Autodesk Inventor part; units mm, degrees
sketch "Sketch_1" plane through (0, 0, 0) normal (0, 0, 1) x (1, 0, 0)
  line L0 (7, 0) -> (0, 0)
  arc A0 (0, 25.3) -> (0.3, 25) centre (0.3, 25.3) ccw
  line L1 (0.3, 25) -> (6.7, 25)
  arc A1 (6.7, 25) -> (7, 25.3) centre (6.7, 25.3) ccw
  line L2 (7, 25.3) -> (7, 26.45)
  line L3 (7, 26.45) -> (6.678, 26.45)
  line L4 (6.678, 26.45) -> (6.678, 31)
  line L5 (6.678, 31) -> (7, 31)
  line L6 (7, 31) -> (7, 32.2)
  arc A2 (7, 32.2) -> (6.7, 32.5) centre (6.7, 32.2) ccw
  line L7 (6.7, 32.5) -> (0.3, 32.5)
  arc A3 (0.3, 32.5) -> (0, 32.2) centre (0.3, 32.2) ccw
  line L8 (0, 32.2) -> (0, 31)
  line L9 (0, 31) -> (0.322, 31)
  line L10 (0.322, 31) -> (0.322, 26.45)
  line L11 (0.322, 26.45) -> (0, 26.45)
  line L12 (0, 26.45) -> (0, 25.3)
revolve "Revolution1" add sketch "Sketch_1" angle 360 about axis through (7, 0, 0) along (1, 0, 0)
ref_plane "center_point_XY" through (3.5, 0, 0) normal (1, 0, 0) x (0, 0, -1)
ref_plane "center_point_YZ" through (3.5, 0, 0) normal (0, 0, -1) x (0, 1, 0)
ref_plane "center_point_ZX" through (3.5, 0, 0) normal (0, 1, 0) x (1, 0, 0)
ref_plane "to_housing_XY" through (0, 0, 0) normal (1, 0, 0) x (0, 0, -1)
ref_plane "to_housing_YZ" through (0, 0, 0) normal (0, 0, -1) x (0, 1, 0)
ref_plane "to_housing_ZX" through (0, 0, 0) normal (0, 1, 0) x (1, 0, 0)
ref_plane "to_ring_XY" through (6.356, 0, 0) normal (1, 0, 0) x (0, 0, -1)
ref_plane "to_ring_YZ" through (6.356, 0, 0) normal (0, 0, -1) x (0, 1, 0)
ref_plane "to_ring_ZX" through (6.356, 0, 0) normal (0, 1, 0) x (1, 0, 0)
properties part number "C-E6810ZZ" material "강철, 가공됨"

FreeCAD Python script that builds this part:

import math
import FreeCAD as App
import Part
import Sketcher

doc = App.newDocument("Part")
body = doc.addObject("PartDesign::Body", "Body")

# Sketch on XY plane
sketch1 = body.newObject("Sketcher::SketchObject", "Sketch")
sketch1.AttachmentSupport = (doc.getObject("XY_Plane"), [""])
sketch1.MapMode = "FlatFace"
sketch1.addGeometry([
    Part.LineSegment(App.Vector(0, 26.45, 0), App.Vector(0, 25.3, 0)),  # 0
    Part.ArcOfCircle(Part.Circle(App.Vector(0.3, 25.3, 0), App.Vector(0, 0, 1), 0.3), math.radians(180), math.radians(270)),  # 1
    Part.LineSegment(App.Vector(0.3, 25, 0), App.Vector(6.7, 25, 0)),  # 2
    Part.ArcOfCircle(Part.Circle(App.Vector(6.7, 25.3, 0), App.Vector(0, 0, 1), 0.3), math.radians(-90), math.radians(0)),  # 3
    Part.LineSegment(App.Vector(7, 25.3, 0), App.Vector(7, 26.45, 0)),  # 4
    Part.LineSegment(App.Vector(7, 26.45, 0), App.Vector(6.68, 26.45, 0)),  # 5
    Part.LineSegment(App.Vector(6.68, 26.45, 0), App.Vector(6.68, 31, 0)),  # 6
    Part.LineSegment(App.Vector(6.68, 31, 0), App.Vector(7, 31, 0)),  # 7
    Part.LineSegment(App.Vector(7, 31, 0), App.Vector(7, 32.2, 0)),  # 8
    Part.ArcOfCircle(Part.Circle(App.Vector(6.7, 32.2, 0), App.Vector(0, 0, 1), 0.3), math.radians(0), math.radians(90)),  # 9
    Part.LineSegment(App.Vector(6.7, 32.5, 0), App.Vector(0.3, 32.5, 0)),  # 10
    Part.ArcOfCircle(Part.Circle(App.Vector(0.3, 32.2, 0), App.Vector(0, 0, 1), 0.3), math.radians(90), math.radians(180)),  # 11
    Part.LineSegment(App.Vector(0, 32.2, 0), App.Vector(0, 31, 0)),  # 12
    Part.LineSegment(App.Vector(0, 31, 0), App.Vector(0.32, 31, 0)),  # 13
    Part.LineSegment(App.Vector(0.32, 31, 0), App.Vector(0.32, 26.45, 0)),  # 14
    Part.LineSegment(App.Vector(0.32, 26.45, 0), App.Vector(0, 26.45, 0)),  # 15
], False)
sketch1.addConstraint([
    Sketcher.Constraint("Tangent", 0, 2, 1, 1),
    Sketcher.Constraint("Tangent", 1, 2, 2, 1),
    Sketcher.Constraint("Tangent", 2, 2, 3, 1),
    Sketcher.Constraint("Tangent", 3, 2, 4, 1),
    Sketcher.Constraint("Coincident", 4, 2, 5, 1),
    Sketcher.Constraint("Coincident", 5, 2, 6, 1),
    Sketcher.Constraint("Coincident", 6, 2, 7, 1),
    Sketcher.Constraint("Coincident", 7, 2, 8, 1),
    Sketcher.Constraint("Tangent", 8, 2, 9, 1),
    Sketcher.Constraint("Tangent", 9, 2, 10, 1),
    Sketcher.Constraint("Tangent", 10, 2, 11, 1),
    Sketcher.Constraint("Tangent", 11, 2, 12, 1),
    Sketcher.Constraint("Coincident", 12, 2, 13, 1),
    Sketcher.Constraint("Coincident", 13, 2, 14, 1),
    Sketcher.Constraint("Coincident", 14, 2, 15, 1),
    Sketcher.Constraint("Coincident", 15, 2, 0, 1),
    Sketcher.Constraint("Vertical", 0),
    Sketcher.Constraint("Horizontal", 2),
    Sketcher.Constraint("Vertical", 4),
    Sketcher.Constraint("Horizontal", 5),
    Sketcher.Constraint("Vertical", 6),
    Sketcher.Constraint("Horizontal", 7),
    Sketcher.Constraint("Vertical", 8),
    Sketcher.Constraint("Horizontal", 10),
    Sketcher.Constraint("Vertical", 12),
    Sketcher.Constraint("Horizontal", 13),
    Sketcher.Constraint("Vertical", 14),
    Sketcher.Constraint("Horizontal", 15),
    Sketcher.Constraint("Equal", 1, 3),
    Sketcher.Constraint("Equal", 3, 9),
    Sketcher.Constraint("Equal", 9, 11),
    Sketcher.Constraint("PointOnObject", 0, 2, -2),
    Sketcher.Constraint("PointOnObject", 11, 2, -2),
    Sketcher.Constraint("Horizontal", 7, 2, 12, 2),
    Sketcher.Constraint("Horizontal", 5, 2, 14, 2),
    Sketcher.Constraint("Vertical", 3, 3, 9, 3),
    Sketcher.Constraint("Equal", 7, 13),
    Sketcher.Constraint("Radius", 1, 0.3),
    Sketcher.Constraint("DistanceX", 2, 1, 2, 2, 6.4),
    Sketcher.Constraint("DistanceY", 8, 1, 8, 2, 1.2),
    Sketcher.Constraint("DistanceY", -1, 1, 1, 2, 25.0),
    Sketcher.Constraint("DistanceY", -1, 1, 6, 2, 31.0),
    Sketcher.Constraint("DistanceY", 0, 2, 0, 1, 1.15),
    Sketcher.Constraint("DistanceX", 5, 2, 5, 1, 0.322),
])
revolution = body.newObject("PartDesign::Revolution", "Revolution")
revolution.Profile = sketch1
revolution.ReferenceAxis = (sketch1, ["H_Axis"])
revolution.Angle = 360

doc.recompute()
